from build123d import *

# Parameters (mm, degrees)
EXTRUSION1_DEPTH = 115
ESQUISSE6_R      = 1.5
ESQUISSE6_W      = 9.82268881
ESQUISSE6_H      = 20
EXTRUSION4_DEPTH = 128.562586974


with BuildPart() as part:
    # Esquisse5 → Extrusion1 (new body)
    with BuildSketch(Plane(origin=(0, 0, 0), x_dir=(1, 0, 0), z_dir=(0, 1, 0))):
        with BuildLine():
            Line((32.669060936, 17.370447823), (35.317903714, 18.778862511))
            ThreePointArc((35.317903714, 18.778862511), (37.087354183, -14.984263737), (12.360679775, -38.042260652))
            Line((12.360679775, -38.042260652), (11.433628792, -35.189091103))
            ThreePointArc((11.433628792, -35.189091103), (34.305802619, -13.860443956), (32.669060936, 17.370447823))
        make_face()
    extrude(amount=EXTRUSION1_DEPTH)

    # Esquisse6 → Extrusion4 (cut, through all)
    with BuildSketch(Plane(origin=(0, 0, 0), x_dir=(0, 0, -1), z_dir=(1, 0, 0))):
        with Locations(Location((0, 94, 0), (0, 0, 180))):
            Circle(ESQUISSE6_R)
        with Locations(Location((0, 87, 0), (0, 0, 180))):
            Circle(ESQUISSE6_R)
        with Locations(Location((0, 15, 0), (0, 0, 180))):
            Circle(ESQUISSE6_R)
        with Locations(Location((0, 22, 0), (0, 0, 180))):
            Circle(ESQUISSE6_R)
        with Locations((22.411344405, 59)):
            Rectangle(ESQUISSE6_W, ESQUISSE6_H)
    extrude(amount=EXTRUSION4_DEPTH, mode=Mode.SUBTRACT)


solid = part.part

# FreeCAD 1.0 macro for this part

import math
import FreeCAD as App
import Part
import Sketcher
from FreeCAD import Vector
Q = App.Units.Quantity


def add_polygon(sketch, points):
    """Adds a closed chain of lines whose ends are joined by coincident constraints."""
    first, n = sketch.GeometryCount, len(points)
    for a, b in zip(points, points[1:] + points[:1]):
        sketch.addGeometry(Part.LineSegment(App.Vector(*a, 0), App.Vector(*b, 0)), False)
    for i in range(n):
        sketch.addConstraint(Sketcher.Constraint("Coincident", first + i, 2, first + (i + 1) % n, 1))

doc = App.newDocument("Part")
body = doc.addObject("PartDesign::Body", "Body")

# Sketch on XZ plane
sketch1 = doc.addObject("Sketcher::SketchObject", "Sketch")
body.addObject(sketch1)
sketch1.AttachmentSupport = (doc.XZ_Plane, [""])
sketch1.MapMode = "FlatFace"
sketch1.addGeometry([
    Part.LineSegment(Vector(35.317904, -18.778863, 0), Vector(32.669061, -17.370448, 0)),
    Part.ArcOfCircle(Part.Circle(Vector(0, 0, 0), Vector(0, 0, 1), 37), math.radians(-28), math.radians(72)),
    Part.LineSegment(Vector(11.433629, 35.189091, 0), Vector(12.36068, 38.042261, 0)),
    Part.ArcOfCircle(Part.Circle(Vector(0, 0, 0), Vector(0, 0, 1), 40), math.radians(-28), math.radians(72)),
], False)
sketch1.addConstraint([
    Sketcher.Constraint("Coincident", 0, 2, 1, 1),
    Sketcher.Constraint("Coincident", 1, 2, 2, 1),
    Sketcher.Constraint("Coincident", 2, 2, 3, 2),
    Sketcher.Constraint("Coincident", 3, 1, 0, 1),
    Sketcher.Constraint("Coincident", 1, 3, -1, 1),
    Sketcher.Constraint("Coincident", 3, 3, -1, 1),
    Sketcher.Constraint("Radius", 1, Q("37 mm")),
    Sketcher.Constraint("Radius", 3, Q("40 mm")),
    Sketcher.Constraint("Angle", 0, Q("152 deg")),
    Sketcher.Constraint("Angle", 2, Q("72 deg")),
    Sketcher.Constraint("DistanceX", -1, 1, 0, 2, Q("32.669061 mm")),
    Sketcher.Constraint("DistanceX", -1, 1, 1, 2, Q("11.433629 mm")),
])
pad1 = doc.addObject("PartDesign::Pad", "Pad")
body.addObject(pad1)
pad1.Profile = sketch1
pad1.Length = 115
pad1.Reversed = True

# Sketch on YZ plane
sketch2 = doc.addObject("Sketcher::SketchObject", "Sketch001")
body.addObject(sketch2)
sketch2.AttachmentSupport = (doc.YZ_Plane, [""])
sketch2.MapMode = "FlatFace"
sketch2.addGeometry(Part.Circle(Vector(94, 0, 0), Vector(0, 0, 1), 1.5), False)  # 0
sketch2.addGeometry(Part.Circle(Vector(87, 0, 0), Vector(0, 0, 1), 1.5), False)  # 1
sketch2.addGeometry(Part.Circle(Vector(15, 0, 0), Vector(0, 0, 1), 1.5), False)  # 2
sketch2.addGeometry(Part.Circle(Vector(22, 0, 0), Vector(0, 0, 1), 1.5), False)  # 3
add_polygon(sketch2, [(69, -17.5), (49, -17.5), (49, -27.322689), (69, -27.322689)])  # lines 4-7
sketch2.addConstraint([
    Sketcher.Constraint("Horizontal", 4),
    Sketcher.Constraint("Vertical", 5),
    Sketcher.Constraint("Horizontal", 6),
    Sketcher.Constraint("Vertical", 7),
    Sketcher.Constraint("Equal", 0, 1),
    Sketcher.Constraint("Equal", 1, 2),
    Sketcher.Constraint("Equal", 2, 3),
    Sketcher.Constraint("PointOnObject", 0, 3, -1),
    Sketcher.Constraint("PointOnObject", 1, 3, -1),
    Sketcher.Constraint("PointOnObject", 2, 3, -1),
    Sketcher.Constraint("PointOnObject", 3, 3, -1),
    Sketcher.Constraint("Diameter", 0, Q("3 mm")),
    Sketcher.Constraint("DistanceX", 4, 2, 4, 1, Q("20 mm")),
    Sketcher.Constraint("DistanceX", -1, 1, 0, 3, Q("94 mm")),
    Sketcher.Constraint("DistanceX", -1, 1, 1, 3, Q("87 mm")),
    Sketcher.Constraint("DistanceX", -1, 1, 2, 3, Q("15 mm")),
    Sketcher.Constraint("DistanceX", -1, 1, 3, 3, Q("22 mm")),
    Sketcher.Constraint("DistanceX", -1, 1, 4, 2, Q("49 mm")),
    Sketcher.Constraint("DistanceY", 4, 2, -1, 1, Q("17.5 mm")),
    Sketcher.Constraint("DistanceY", 5, 2, 5, 1, Q("9.822689 mm")),
])
pocket1 = doc.addObject("PartDesign::Pocket", "Pocket")
body.addObject(pocket1)
pocket1.Profile = sketch2
pocket1.Type = "ThroughAll"
pocket1.Reversed = True

doc.recompute()
